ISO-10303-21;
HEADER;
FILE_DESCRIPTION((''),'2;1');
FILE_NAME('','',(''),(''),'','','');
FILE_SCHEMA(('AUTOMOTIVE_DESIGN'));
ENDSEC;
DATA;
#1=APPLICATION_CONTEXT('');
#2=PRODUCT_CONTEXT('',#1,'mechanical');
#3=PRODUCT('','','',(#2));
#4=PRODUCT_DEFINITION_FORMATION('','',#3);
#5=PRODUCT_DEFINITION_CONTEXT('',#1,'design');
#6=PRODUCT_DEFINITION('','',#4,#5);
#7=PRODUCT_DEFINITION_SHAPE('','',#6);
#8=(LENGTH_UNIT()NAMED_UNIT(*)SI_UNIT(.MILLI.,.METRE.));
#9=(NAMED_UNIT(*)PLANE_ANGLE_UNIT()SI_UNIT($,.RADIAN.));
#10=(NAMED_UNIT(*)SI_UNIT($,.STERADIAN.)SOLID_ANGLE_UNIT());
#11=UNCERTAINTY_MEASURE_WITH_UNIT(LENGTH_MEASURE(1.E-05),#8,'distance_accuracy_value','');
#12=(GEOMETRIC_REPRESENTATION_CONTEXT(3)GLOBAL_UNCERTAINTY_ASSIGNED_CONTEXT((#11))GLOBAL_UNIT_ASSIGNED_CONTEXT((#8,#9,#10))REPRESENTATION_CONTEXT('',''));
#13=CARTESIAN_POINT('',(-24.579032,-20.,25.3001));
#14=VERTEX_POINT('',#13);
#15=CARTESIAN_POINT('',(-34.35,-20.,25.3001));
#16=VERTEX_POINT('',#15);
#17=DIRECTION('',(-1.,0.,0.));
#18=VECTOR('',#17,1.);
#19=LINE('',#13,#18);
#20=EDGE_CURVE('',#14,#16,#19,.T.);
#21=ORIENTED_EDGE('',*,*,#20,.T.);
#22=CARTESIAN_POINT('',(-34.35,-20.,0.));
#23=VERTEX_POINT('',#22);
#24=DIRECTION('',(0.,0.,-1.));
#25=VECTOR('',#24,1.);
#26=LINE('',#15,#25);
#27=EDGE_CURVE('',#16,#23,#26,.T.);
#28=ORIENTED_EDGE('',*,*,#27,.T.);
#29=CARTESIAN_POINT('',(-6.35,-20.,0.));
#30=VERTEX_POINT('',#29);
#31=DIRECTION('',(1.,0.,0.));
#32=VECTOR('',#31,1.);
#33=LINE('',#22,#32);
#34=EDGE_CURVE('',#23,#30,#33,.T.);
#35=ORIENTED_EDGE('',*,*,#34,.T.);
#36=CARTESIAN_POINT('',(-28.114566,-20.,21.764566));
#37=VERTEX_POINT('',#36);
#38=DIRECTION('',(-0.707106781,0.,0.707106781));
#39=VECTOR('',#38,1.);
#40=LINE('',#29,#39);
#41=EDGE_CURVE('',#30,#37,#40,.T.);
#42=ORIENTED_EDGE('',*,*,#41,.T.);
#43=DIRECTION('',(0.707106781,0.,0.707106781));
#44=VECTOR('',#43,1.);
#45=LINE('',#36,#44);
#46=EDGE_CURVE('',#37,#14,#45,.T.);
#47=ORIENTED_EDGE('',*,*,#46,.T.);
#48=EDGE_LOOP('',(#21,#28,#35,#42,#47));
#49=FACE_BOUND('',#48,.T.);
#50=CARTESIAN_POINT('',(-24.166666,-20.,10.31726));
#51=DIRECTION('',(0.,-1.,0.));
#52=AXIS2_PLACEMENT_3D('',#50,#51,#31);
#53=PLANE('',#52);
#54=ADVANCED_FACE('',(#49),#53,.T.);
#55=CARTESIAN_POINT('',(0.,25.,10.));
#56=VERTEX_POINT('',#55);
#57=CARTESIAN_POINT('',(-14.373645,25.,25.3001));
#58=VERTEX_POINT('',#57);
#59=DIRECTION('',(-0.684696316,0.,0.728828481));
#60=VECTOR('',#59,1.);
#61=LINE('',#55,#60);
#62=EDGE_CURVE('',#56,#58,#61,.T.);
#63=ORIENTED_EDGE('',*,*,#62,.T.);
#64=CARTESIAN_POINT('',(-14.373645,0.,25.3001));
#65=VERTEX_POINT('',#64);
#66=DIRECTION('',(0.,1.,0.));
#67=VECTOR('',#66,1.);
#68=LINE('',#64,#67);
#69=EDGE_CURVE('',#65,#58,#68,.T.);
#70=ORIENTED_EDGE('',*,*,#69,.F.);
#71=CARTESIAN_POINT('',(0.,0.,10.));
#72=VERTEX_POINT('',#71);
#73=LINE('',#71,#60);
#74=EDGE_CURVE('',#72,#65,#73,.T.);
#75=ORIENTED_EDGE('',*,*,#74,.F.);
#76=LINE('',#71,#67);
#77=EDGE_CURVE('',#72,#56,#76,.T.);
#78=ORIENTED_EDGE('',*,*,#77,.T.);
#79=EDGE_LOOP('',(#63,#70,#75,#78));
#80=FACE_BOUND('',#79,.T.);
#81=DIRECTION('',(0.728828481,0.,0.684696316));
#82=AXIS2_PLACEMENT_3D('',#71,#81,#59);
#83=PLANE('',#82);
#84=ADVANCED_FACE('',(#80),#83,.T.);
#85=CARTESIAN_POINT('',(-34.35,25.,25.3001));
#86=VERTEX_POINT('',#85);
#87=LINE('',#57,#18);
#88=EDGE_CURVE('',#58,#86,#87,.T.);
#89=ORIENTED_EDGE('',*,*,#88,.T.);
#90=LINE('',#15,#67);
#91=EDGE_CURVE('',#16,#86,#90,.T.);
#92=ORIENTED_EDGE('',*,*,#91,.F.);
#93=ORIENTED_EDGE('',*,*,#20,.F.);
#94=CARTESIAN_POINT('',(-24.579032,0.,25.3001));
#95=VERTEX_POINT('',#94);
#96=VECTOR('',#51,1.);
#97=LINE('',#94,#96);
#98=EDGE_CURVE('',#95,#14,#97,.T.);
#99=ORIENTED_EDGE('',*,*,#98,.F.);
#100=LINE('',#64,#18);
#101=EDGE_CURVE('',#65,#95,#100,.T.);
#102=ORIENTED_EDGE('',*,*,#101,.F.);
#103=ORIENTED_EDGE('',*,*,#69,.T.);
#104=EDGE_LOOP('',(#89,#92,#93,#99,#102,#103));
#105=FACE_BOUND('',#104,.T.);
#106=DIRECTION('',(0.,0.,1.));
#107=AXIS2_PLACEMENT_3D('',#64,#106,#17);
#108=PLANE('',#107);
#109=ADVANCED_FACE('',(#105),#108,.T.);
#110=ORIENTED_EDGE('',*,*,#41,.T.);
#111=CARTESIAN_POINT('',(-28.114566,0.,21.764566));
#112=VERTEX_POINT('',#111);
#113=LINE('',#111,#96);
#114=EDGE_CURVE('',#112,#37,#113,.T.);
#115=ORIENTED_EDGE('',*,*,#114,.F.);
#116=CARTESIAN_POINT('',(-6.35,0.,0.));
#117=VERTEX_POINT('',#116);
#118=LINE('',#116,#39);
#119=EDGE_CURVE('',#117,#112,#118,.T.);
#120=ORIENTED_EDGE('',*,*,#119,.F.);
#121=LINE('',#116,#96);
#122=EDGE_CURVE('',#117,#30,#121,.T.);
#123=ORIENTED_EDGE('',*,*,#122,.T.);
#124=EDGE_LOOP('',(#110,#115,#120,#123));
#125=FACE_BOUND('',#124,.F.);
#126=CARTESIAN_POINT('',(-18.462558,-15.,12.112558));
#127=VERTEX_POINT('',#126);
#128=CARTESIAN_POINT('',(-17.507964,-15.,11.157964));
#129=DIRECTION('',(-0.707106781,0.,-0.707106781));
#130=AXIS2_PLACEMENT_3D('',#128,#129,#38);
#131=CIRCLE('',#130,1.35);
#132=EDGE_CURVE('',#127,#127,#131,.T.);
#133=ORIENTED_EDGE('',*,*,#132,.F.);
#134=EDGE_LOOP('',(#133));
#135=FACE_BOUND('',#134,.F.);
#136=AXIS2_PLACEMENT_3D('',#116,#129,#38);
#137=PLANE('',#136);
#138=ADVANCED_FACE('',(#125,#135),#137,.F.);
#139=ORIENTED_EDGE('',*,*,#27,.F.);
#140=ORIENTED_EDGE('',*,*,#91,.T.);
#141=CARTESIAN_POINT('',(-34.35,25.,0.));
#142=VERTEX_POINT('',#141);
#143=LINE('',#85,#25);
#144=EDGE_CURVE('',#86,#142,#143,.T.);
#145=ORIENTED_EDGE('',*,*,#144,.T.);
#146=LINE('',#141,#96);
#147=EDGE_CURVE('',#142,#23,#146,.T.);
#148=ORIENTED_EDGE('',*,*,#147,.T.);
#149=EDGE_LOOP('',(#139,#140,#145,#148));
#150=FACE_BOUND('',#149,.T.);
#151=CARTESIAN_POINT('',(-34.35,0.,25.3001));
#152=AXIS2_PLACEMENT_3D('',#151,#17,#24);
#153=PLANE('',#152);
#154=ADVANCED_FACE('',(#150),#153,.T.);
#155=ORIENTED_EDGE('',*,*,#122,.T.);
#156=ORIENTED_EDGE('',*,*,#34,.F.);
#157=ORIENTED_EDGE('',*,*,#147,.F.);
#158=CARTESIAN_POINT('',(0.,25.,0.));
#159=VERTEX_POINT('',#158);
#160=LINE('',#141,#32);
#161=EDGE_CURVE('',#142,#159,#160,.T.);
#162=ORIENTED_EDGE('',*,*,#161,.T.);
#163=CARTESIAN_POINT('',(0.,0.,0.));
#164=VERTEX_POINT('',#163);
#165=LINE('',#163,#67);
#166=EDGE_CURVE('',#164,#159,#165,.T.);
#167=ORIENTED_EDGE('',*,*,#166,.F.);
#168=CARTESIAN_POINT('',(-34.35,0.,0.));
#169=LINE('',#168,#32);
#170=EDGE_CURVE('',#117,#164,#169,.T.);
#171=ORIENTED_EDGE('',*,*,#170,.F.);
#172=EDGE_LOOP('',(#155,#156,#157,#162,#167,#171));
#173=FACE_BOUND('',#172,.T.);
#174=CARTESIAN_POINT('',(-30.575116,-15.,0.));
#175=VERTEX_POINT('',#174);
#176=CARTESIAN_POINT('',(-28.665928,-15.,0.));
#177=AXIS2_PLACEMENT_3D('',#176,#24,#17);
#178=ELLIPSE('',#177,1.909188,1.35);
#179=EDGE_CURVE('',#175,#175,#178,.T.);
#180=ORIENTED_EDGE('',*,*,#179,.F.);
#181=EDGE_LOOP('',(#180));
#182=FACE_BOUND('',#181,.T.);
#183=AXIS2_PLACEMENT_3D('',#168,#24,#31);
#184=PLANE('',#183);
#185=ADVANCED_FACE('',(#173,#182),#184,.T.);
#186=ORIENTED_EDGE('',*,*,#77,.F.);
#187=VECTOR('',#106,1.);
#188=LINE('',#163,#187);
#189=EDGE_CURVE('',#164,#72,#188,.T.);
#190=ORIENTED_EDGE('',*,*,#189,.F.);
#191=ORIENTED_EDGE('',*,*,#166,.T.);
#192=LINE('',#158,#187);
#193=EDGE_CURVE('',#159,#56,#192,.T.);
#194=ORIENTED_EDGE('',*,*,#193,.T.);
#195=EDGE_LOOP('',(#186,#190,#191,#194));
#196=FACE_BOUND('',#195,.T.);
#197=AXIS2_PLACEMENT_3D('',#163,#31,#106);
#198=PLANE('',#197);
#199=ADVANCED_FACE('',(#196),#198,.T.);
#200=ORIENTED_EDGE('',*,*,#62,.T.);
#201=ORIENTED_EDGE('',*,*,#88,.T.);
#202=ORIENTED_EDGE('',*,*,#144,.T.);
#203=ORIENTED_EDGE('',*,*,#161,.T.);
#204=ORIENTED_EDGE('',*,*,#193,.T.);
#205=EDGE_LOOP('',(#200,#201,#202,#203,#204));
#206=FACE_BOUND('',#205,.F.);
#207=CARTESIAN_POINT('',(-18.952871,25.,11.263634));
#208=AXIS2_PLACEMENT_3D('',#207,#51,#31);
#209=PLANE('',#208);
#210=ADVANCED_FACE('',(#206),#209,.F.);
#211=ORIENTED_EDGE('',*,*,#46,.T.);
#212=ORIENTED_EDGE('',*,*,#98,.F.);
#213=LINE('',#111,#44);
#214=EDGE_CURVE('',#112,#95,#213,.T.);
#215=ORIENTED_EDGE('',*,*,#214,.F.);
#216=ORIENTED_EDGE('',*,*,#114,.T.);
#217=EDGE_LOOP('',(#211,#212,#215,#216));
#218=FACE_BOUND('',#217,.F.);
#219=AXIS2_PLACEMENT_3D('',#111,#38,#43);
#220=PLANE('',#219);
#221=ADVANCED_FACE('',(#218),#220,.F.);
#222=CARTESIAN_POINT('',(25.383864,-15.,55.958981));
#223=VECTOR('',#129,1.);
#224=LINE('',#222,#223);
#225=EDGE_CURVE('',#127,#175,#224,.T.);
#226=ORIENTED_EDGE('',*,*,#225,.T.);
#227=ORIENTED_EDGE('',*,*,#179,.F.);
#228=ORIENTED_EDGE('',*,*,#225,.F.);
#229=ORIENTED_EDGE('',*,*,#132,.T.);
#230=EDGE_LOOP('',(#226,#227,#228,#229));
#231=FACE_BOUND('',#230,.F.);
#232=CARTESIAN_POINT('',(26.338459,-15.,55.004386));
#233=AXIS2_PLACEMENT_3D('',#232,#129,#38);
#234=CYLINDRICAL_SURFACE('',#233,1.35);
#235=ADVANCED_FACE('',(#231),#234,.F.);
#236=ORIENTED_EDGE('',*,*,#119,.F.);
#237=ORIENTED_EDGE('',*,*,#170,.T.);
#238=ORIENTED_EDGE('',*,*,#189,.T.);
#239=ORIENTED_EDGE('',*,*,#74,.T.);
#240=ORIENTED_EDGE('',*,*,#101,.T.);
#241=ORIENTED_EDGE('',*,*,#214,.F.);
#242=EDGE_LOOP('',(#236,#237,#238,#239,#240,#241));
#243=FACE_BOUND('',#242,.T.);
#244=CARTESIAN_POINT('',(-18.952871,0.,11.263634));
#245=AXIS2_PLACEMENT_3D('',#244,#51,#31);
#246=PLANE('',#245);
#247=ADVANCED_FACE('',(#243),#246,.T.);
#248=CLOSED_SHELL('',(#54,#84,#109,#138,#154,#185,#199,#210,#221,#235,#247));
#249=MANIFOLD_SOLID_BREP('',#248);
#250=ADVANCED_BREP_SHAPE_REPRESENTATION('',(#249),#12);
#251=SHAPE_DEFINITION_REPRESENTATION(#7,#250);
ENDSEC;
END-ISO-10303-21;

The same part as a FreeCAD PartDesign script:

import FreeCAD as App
import Part
import Sketcher

V = App.Vector
Q = App.Units.Quantity

doc = App.newDocument("Part")
body = doc.addObject("PartDesign::Body", "Body")

# Sketch on XZ plane
sketch1 = body.newObject("Sketcher::SketchObject", "Sketch")
sketch1.AttachmentSupport = (doc.getObject("XZ_Plane"), [""])
sketch1.MapMode = "FlatFace"
sketch1.addGeometry([
    Part.LineSegment(V(-34.35, 0, 0), V(-6.35, 0, 0)),  # 0
    Part.LineSegment(V(-6.35, 0, 0), V(-28.114566, 21.764566, 0)),  # 1
    Part.LineSegment(V(-28.114566, 21.764566, 0), V(-24.579032, 25.3001, 0)),  # 2
    Part.LineSegment(V(-24.579032, 25.3001, 0), V(-34.35, 25.3001, 0)),  # 3
    Part.LineSegment(V(-34.35, 25.3001, 0), V(-34.35, 0, 0)),  # 4
], False)
sketch1.addConstraint([
    Sketcher.Constraint("Coincident", 0, 2, 1, 1),
    Sketcher.Constraint("Coincident", 1, 2, 2, 1),
    Sketcher.Constraint("Coincident", 2, 2, 3, 1),
    Sketcher.Constraint("Coincident", 3, 2, 4, 1),
    Sketcher.Constraint("Coincident", 4, 2, 0, 1),
    Sketcher.Constraint("Horizontal", 0),
    Sketcher.Constraint("Horizontal", 3),
    Sketcher.Constraint("Vertical", 4),
    Sketcher.Constraint("PointOnObject", 0, 2, -1),
    Sketcher.Constraint("Perpendicular", 1, 2),
    Sketcher.Constraint("DistanceX", 0, 1, 0, 2, 28.0),
    Sketcher.Constraint("Angle", 1, Q("135 deg")),
    Sketcher.Constraint("Distance", 2, 5.0),
    Sketcher.Constraint("DistanceX", 0, 2, -1, 1, 6.35),
    Sketcher.Constraint("DistanceY", 4, 2, 4, 1, 25.3001),
])
pad1 = body.newObject("PartDesign::Pad", "Pad")
pad1.Profile = sketch1
pad1.Length = 20

# Sketch on XZ plane
sketch2 = body.newObject("Sketcher::SketchObject", "Sketch001")
sketch2.AttachmentSupport = (doc.getObject("XZ_Plane"), [""])
sketch2.MapMode = "FlatFace"
sketch2.addGeometry([
    Part.LineSegment(V(-34.35, 25.3001, 0), V(-34.35, 0, 0)),  # 0
    Part.LineSegment(V(-34.35, 0, 0), V(0, 0, 0)),  # 1
    Part.LineSegment(V(0, 0, 0), V(0, 10, 0)),  # 2
    Part.LineSegment(V(0, 10, 0), V(-14.373645, 25.3001, 0)),  # 3
    Part.LineSegment(V(-14.373645, 25.3001, 0), V(-34.35, 25.3001, 0)),  # 4
], False)
sketch2.addConstraint([
    Sketcher.Constraint("Coincident", 0, 2, 1, 1),
    Sketcher.Constraint("Coincident", 1, 2, 2, 1),
    Sketcher.Constraint("Coincident", 2, 2, 3, 1),
    Sketcher.Constraint("Coincident", 3, 2, 4, 1),
    Sketcher.Constraint("Coincident", 4, 2, 0, 1),
    Sketcher.Constraint("Vertical", 0),
    Sketcher.Constraint("Horizontal", 1),
    Sketcher.Constraint("Vertical", 2),
    Sketcher.Constraint("Horizontal", 4),
    Sketcher.Constraint("Coincident", 1, 2, -1, 1),
    Sketcher.Constraint("DistanceY", 2, 1, 2, 2, 10.0),
    Sketcher.Constraint("DistanceX", 1, 1, 1, 2, 34.35),
    Sketcher.Constraint("DistanceY", 0, 2, 0, 1, 25.3001),
    Sketcher.Constraint("Distance", 3, 20.99273),
])
pad2 = body.newObject("PartDesign::Pad", "Pad001")
pad2.Profile = sketch2
pad2.Length = 25
pad2.Reversed = True

# Sketch on an angled plane
sketch3 = body.newObject("Sketcher::SketchObject", "Sketch002")
sketch3.Placement = App.Placement(V(-3.175, 0, -3.175), App.Rotation(V(0.707106781, 0, -0.707106781), V(0, 0.999999999, 0), V(0.707106781, 0, 0.707106781), "ZXY"))
sketch3.addGeometry(Part.Circle(V(-20.269872, -15, 0), V(0, 0, 1), 1.35), False)
sketch3.addConstraint([
    Sketcher.Constraint("Diameter", 0, 2.7),
    Sketcher.Constraint("DistanceY", 0, 3, -1, 1, 15.0),
    Sketcher.Constraint("DistanceX", 0, 3, -1, 1, 20.269872),
])
doc.recompute()
hole = body.newObject("PartDesign::Hole", "Hole")
hole.Profile = sketch3
hole.ThreadType = "None"
hole.Diameter = 2.7
hole.DepthType = "ThroughAll"

doc.recompute()
